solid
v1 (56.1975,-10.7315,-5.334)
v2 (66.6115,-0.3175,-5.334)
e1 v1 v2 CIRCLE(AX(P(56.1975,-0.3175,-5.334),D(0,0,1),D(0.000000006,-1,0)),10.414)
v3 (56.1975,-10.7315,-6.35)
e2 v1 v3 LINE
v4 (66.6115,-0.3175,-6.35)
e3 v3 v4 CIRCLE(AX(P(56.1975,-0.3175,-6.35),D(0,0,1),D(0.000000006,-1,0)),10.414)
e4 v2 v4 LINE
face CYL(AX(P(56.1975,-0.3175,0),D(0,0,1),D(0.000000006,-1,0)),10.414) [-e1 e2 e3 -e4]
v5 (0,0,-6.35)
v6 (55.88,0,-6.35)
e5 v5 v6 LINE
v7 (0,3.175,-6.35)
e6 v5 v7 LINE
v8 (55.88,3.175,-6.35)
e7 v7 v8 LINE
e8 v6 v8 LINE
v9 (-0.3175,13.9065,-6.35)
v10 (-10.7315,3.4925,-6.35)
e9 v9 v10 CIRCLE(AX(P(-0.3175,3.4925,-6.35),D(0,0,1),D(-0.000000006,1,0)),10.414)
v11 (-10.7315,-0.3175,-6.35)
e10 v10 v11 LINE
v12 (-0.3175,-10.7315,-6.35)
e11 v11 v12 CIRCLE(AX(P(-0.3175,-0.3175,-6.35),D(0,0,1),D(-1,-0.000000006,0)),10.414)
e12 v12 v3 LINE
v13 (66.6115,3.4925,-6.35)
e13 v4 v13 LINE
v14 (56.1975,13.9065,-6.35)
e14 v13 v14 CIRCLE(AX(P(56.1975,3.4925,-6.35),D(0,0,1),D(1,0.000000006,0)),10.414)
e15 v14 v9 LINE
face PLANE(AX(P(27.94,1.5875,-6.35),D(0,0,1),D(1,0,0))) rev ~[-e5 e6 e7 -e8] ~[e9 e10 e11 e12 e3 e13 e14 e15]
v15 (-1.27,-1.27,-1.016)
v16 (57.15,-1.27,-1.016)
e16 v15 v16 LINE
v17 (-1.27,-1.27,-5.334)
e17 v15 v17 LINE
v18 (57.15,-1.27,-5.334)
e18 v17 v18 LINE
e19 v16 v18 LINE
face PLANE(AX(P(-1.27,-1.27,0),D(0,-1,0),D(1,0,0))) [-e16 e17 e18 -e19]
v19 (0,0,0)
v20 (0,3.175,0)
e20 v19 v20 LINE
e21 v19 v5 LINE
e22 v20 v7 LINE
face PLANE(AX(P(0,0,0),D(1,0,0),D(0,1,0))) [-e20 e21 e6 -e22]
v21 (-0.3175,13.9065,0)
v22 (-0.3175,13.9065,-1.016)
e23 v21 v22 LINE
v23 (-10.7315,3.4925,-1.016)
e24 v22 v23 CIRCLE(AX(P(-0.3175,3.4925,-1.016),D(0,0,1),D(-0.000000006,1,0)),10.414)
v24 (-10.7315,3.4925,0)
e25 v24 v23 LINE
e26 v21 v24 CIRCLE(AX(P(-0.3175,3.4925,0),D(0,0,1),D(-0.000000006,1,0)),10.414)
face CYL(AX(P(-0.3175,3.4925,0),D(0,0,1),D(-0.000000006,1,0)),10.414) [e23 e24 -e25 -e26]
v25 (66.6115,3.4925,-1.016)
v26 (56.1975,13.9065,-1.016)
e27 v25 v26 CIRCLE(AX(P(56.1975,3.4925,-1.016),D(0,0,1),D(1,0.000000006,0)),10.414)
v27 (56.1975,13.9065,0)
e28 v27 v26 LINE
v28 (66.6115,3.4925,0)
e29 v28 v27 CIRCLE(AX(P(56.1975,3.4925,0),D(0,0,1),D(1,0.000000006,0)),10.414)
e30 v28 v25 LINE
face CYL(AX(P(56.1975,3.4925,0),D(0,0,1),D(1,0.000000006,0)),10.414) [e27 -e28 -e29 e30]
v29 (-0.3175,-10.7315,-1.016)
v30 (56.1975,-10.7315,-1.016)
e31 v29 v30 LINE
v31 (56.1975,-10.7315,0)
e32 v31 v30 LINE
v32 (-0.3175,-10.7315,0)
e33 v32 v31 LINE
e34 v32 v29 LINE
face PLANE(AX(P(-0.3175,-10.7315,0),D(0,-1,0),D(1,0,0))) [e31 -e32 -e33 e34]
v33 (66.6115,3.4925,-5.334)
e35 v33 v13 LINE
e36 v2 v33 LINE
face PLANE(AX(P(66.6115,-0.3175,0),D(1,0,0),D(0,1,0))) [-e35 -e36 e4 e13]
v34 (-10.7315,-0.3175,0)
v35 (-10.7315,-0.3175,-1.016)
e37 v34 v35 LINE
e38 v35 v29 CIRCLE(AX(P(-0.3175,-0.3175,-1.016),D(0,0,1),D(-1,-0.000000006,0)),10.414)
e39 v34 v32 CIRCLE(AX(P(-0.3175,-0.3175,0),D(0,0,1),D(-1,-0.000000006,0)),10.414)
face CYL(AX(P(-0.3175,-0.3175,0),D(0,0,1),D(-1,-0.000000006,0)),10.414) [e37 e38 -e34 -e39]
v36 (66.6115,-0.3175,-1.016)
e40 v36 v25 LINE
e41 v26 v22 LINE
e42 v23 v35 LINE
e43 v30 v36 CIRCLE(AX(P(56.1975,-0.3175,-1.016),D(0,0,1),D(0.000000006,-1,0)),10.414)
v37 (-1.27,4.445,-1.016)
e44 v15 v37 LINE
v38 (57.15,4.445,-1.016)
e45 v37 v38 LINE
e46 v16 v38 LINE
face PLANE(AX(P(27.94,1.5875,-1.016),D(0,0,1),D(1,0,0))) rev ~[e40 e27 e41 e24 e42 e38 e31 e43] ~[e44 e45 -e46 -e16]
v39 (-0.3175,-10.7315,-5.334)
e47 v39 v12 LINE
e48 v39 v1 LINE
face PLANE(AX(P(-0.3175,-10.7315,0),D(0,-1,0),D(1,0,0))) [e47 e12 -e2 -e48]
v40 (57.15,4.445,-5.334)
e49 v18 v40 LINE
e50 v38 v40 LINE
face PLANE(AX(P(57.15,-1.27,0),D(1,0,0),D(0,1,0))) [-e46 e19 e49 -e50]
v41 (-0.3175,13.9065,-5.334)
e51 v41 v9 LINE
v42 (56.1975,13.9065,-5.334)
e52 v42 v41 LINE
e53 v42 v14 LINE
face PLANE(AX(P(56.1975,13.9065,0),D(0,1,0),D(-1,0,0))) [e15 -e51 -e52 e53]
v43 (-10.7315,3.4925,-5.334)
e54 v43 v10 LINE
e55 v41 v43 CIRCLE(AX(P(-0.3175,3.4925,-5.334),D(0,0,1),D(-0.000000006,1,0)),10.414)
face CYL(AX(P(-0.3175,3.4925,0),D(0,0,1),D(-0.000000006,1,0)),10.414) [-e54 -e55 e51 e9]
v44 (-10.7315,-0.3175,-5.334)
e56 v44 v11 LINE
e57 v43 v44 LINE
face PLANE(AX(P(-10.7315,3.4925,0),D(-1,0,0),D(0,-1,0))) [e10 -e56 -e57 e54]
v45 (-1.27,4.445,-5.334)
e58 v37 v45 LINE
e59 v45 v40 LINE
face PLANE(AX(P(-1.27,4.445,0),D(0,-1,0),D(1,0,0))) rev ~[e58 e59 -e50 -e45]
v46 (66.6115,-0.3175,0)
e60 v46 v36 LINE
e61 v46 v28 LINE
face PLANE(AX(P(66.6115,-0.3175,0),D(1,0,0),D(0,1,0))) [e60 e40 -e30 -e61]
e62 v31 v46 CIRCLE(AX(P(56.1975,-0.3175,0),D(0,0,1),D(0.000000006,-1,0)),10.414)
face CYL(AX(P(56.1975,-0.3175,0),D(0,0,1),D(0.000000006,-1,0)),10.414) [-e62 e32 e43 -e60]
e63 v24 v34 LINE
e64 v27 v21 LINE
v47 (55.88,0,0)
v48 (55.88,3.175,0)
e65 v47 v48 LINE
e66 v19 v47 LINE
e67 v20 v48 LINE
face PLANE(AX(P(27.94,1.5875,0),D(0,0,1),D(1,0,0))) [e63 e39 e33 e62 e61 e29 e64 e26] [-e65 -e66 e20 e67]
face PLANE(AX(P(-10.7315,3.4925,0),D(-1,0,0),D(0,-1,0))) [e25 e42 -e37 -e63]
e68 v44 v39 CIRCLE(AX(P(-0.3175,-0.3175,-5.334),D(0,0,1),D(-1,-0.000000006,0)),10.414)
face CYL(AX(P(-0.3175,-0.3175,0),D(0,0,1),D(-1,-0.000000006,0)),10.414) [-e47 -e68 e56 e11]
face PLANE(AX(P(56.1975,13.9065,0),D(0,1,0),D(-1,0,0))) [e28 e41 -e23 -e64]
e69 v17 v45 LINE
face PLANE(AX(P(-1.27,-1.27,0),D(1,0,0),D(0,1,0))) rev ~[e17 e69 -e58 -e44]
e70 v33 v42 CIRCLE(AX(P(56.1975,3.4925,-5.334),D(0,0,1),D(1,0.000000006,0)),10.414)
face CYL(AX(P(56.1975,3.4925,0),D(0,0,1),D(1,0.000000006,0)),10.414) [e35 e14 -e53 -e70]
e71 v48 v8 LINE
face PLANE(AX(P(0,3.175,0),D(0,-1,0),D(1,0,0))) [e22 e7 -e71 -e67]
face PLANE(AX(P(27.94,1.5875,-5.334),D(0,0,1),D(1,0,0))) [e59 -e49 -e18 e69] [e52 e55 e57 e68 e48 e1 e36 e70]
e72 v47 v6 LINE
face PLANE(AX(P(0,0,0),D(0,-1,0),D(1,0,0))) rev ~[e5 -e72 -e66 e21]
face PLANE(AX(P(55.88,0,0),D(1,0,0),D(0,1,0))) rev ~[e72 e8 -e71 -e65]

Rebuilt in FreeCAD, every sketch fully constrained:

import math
import FreeCAD as App
import Part
import Sketcher
from FreeCAD import Vector
Q = App.Units.Quantity


def add_polygon(sketch, points):
    """Adds a closed chain of lines whose ends are joined by coincident constraints."""
    first, n = sketch.GeometryCount, len(points)
    for a, b in zip(points, points[1:] + points[:1]):
        sketch.addGeometry(Part.LineSegment(App.Vector(*a, 0), App.Vector(*b, 0)), False)
    for i in range(n):
        sketch.addConstraint(Sketcher.Constraint("Coincident", first + i, 2, first + (i + 1) % n, 1))

doc = App.newDocument("Part")
params = doc.addObject("Spreadsheet::Sheet", "Params")
for row, (alias, value) in enumerate([
    ("sketch1_radius", "0.41 in"),
    ("sketch1_width", "2.2 in"),
    ("sketch1_height", "0.15 in"),
    ("sketch1_width2", "2.225 in"),
    ("sketch1_height2", "0.125 in"),
    ("pad1_length", "0.25 in"),
    ("sketch2_radius", "0.41 in"),
    ("sketch2_width", "2.3 in"),
    ("sketch2_height", "0.15 in"),
    ("sketch2_width2", "2.225 in"),
    ("sketch2_height2", "0.225 in"),
    ("pocket1_length", "0.21 in"),
    ("sketch3_radius", "0.41 in"),
    ("sketch3_width", "2.3 in"),
    ("sketch3_height", "0.15 in"),
    ("sketch3_width2", "2.225 in"),
    ("sketch3_height2", "0.225 in"),
    ("pad2_length", "0.04 in"),
], start=1):
    params.set(f"A{row}", alias)
    params.set(f"B{row}", "=" + value)
    params.setAlias(f"B{row}", alias)

body = doc.addObject("PartDesign::Body", "Body")

# Sketch on XY plane
sketch1 = body.newObject("Sketcher::SketchObject", "Sketch")
sketch1.AttachmentSupport = (doc.getObject("XY_Plane"), [""])
sketch1.MapMode = "FlatFace"
sketch1.addGeometry(Part.LineSegment(Vector(56.2, 13.9, 0), Vector(-0.3, 13.9, 0)), False)  # 0
sketch1.addGeometry(Part.ArcOfCircle(Part.Circle(Vector(-0.3, 3.5, 0), Vector(0, 0, 1), 10.4), math.radians(90), math.radians(180)), False)  # 1
sketch1.addGeometry(Part.LineSegment(Vector(-10.7, 3.5, 0), Vector(-10.7, -0.3, 0)), False)  # 2
sketch1.addGeometry(Part.ArcOfCircle(Part.Circle(Vector(-0.3, -0.3, 0), Vector(0, 0, 1), 10.4), math.radians(-180), math.radians(-90)), False)  # 3
sketch1.addGeometry(Part.LineSegment(Vector(-0.3, -10.7, 0), Vector(56.2, -10.7, 0)), False)  # 4
sketch1.addGeometry(Part.ArcOfCircle(Part.Circle(Vector(56.2, -0.3, 0), Vector(0, 0, 1), 10.4), math.radians(-90), math.radians(0)), False)  # 5
sketch1.addGeometry(Part.LineSegment(Vector(66.6, -0.3, 0), Vector(66.6, 3.5, 0)), False)  # 6
sketch1.addGeometry(Part.ArcOfCircle(Part.Circle(Vector(56.2, 3.5, 0), Vector(0, 0, 1), 10.4), math.radians(0), math.radians(90)), False)  # 7
add_polygon(sketch1, [(55.9, 0), (0, 0), (0, 3.2), (55.9, 3.2)])  # lines 8-11
sketch1.addConstraint(Sketcher.Constraint("Tangent", 0, 2, 1, 1))
sketch1.addConstraint(Sketcher.Constraint("Tangent", 1, 2, 2, 1))
sketch1.addConstraint(Sketcher.Constraint("Tangent", 2, 2, 3, 1))
sketch1.addConstraint(Sketcher.Constraint("Tangent", 3, 2, 4, 1))
sketch1.addConstraint(Sketcher.Constraint("Tangent", 4, 2, 5, 1))
sketch1.addConstraint(Sketcher.Constraint("Tangent", 5, 2, 6, 1))
sketch1.addConstraint(Sketcher.Constraint("Tangent", 6, 2, 7, 1))
sketch1.addConstraint(Sketcher.Constraint("Tangent", 7, 2, 0, 1))
sketch1.addConstraint(Sketcher.Constraint("Horizontal", 0))
sketch1.addConstraint(Sketcher.Constraint("Vertical", 2))
sketch1.addConstraint(Sketcher.Constraint("Horizontal", 4))
sketch1.addConstraint(Sketcher.Constraint("Vertical", 6))
sketch1.addConstraint(Sketcher.Constraint("Horizontal", 8))
sketch1.addConstraint(Sketcher.Constraint("Vertical", 9))
sketch1.addConstraint(Sketcher.Constraint("Horizontal", 10))
sketch1.addConstraint(Sketcher.Constraint("Vertical", 11))
sketch1.addConstraint(Sketcher.Constraint("Coincident", 8, 2, -1, 1))
sketch1.addConstraint(Sketcher.Constraint("Equal", 1, 3))
sketch1.addConstraint(Sketcher.Constraint("Equal", 3, 5))
sketch1.addConstraint(Sketcher.Constraint("Equal", 5, 7))
sketch1.addConstraint(Sketcher.Constraint("Radius", 1, Q("0.41 in")))
sketch1.addConstraint(Sketcher.Constraint("DistanceX", 8, 2, 8, 1, Q("2.2 in")))
sketch1.addConstraint(Sketcher.Constraint("DistanceY", 2, 2, 2, 1, Q("0.15 in")))
sketch1.addConstraint(Sketcher.Constraint("DistanceX", 0, 2, 0, 1, Q("2.225 in")))
sketch1.addConstraint(Sketcher.Constraint("DistanceY", 9, 1, 9, 2, Q("0.125 in")))
sketch1.addConstraint(Sketcher.Constraint("DistanceX", 1, 3, -1, 1, Q("0.0125 in")))
sketch1.addConstraint(Sketcher.Constraint("DistanceY", -1, 1, 1, 3, Q("0.1375 in")))
sketch1.setExpression("Constraints[24]", "Params.sketch1_radius")
sketch1.setExpression("Constraints[25]", "Params.sketch1_width")
sketch1.setExpression("Constraints[26]", "Params.sketch1_height")
sketch1.setExpression("Constraints[27]", "Params.sketch1_width2")
sketch1.setExpression("Constraints[28]", "Params.sketch1_height2")
pad1 = body.newObject("PartDesign::Pad", "Pad")
pad1.Profile = sketch1
pad1.setExpression("Length", "Params.pad1_length")
pad1.Reversed = True

# Sketch on XY plane
sketch2 = body.newObject("Sketcher::SketchObject", "Sketch001")
sketch2.AttachmentSupport = (doc.getObject("XY_Plane"), [""])
sketch2.MapMode = "FlatFace"
sketch2.addGeometry(Part.LineSegment(Vector(56.2, 13.9, 0), Vector(-0.3, 13.9, 0)), False)  # 0
sketch2.addGeometry(Part.ArcOfCircle(Part.Circle(Vector(-0.3, 3.5, 0), Vector(0, 0, 1), 10.4), math.radians(90), math.radians(180)), False)  # 1
sketch2.addGeometry(Part.LineSegment(Vector(-10.7, 3.5, 0), Vector(-10.7, -0.3, 0)), False)  # 2
sketch2.addGeometry(Part.ArcOfCircle(Part.Circle(Vector(-0.3, -0.3, 0), Vector(0, 0, 1), 10.4), math.radians(-180), math.radians(-90)), False)  # 3
sketch2.addGeometry(Part.LineSegment(Vector(-0.3, -10.7, 0), Vector(56.2, -10.7, 0)), False)  # 4
sketch2.addGeometry(Part.ArcOfCircle(Part.Circle(Vector(56.2, -0.3, 0), Vector(0, 0, 1), 10.4), math.radians(-90), math.radians(0)), False)  # 5
sketch2.addGeometry(Part.LineSegment(Vector(66.6, -0.3, 0), Vector(66.6, 3.5, 0)), False)  # 6
sketch2.addGeometry(Part.ArcOfCircle(Part.Circle(Vector(56.2, 3.5, 0), Vector(0, 0, 1), 10.4), math.radians(0), math.radians(90)), False)  # 7
add_polygon(sketch2, [(57.1, -1.3), (-1.3, -1.3), (-1.3, 4.4), (57.1, 4.4)])  # lines 8-11
sketch2.addConstraint(Sketcher.Constraint("Tangent", 0, 2, 1, 1))
sketch2.addConstraint(Sketcher.Constraint("Tangent", 1, 2, 2, 1))
sketch2.addConstraint(Sketcher.Constraint("Tangent", 2, 2, 3, 1))
sketch2.addConstraint(Sketcher.Constraint("Tangent", 3, 2, 4, 1))
sketch2.addConstraint(Sketcher.Constraint("Tangent", 4, 2, 5, 1))
sketch2.addConstraint(Sketcher.Constraint("Tangent", 5, 2, 6, 1))
sketch2.addConstraint(Sketcher.Constraint("Tangent", 6, 2, 7, 1))
sketch2.addConstraint(Sketcher.Constraint("Tangent", 7, 2, 0, 1))
sketch2.addConstraint(Sketcher.Constraint("Horizontal", 0))
sketch2.addConstraint(Sketcher.Constraint("Vertical", 2))
sketch2.addConstraint(Sketcher.Constraint("Horizontal", 4))
sketch2.addConstraint(Sketcher.Constraint("Vertical", 6))
sketch2.addConstraint(Sketcher.Constraint("Horizontal", 8))
sketch2.addConstraint(Sketcher.Constraint("Vertical", 9))
sketch2.addConstraint(Sketcher.Constraint("Horizontal", 10))
sketch2.addConstraint(Sketcher.Constraint("Vertical", 11))
sketch2.addConstraint(Sketcher.Constraint("Equal", 1, 3))
sketch2.addConstraint(Sketcher.Constraint("Equal", 3, 5))
sketch2.addConstraint(Sketcher.Constraint("Equal", 5, 7))
sketch2.addConstraint(Sketcher.Constraint("Radius", 1, Q("0.41 in")))
sketch2.addConstraint(Sketcher.Constraint("DistanceX", 8, 2, 8, 1, Q("2.3 in")))
sketch2.addConstraint(Sketcher.Constraint("DistanceY", 2, 2, 2, 1, Q("0.15 in")))
sketch2.addConstraint(Sketcher.Constraint("DistanceX", 0, 2, 0, 1, Q("2.225 in")))
sketch2.addConstraint(Sketcher.Constraint("DistanceY", 9, 1, 9, 2, Q("0.225 in")))
sketch2.addConstraint(Sketcher.Constraint("DistanceX", 8, 2, -1, 1, Q("0.05 in")))
sketch2.addConstraint(Sketcher.Constraint("DistanceY", 8, 2, -1, 1, Q("0.05 in")))
sketch2.addConstraint(Sketcher.Constraint("DistanceY", 8, 2, 1, 3, Q("0.1875 in")))
sketch2.addConstraint(Sketcher.Constraint("DistanceX", 1, 3, -1, 1, Q("0.0125 in")))
sketch2.setExpression("Constraints[23]", "Params.sketch2_radius")
sketch2.setExpression("Constraints[24]", "Params.sketch2_width")
sketch2.setExpression("Constraints[25]", "Params.sketch2_height")
sketch2.setExpression("Constraints[26]", "Params.sketch2_width2")
sketch2.setExpression("Constraints[27]", "Params.sketch2_height2")
pocket1 = body.newObject("PartDesign::Pocket", "Pocket")
pocket1.Profile = sketch2
pocket1.setExpression("Length", "Params.pocket1_length")

# Sketch on XY plane
sketch3 = body.newObject("Sketcher::SketchObject", "Sketch002")
sketch3.AttachmentSupport = (doc.getObject("XY_Plane"), [""])
sketch3.MapMode = "FlatFace"
sketch3.addGeometry(Part.LineSegment(Vector(56.2, 13.9, 0), Vector(-0.3, 13.9, 0)), False)  # 0
sketch3.addGeometry(Part.ArcOfCircle(Part.Circle(Vector(-0.3, 3.5, 0), Vector(0, 0, 1), 10.4), math.radians(90), math.radians(180)), False)  # 1
sketch3.addGeometry(Part.LineSegment(Vector(-10.7, 3.5, 0), Vector(-10.7, -0.3, 0)), False)  # 2
sketch3.addGeometry(Part.ArcOfCircle(Part.Circle(Vector(-0.3, -0.3, 0), Vector(0, 0, 1), 10.4), math.radians(-180), math.radians(-90)), False)  # 3
sketch3.addGeometry(Part.LineSegment(Vector(-0.3, -10.7, 0), Vector(56.2, -10.7, 0)), False)  # 4
sketch3.addGeometry(Part.ArcOfCircle(Part.Circle(Vector(56.2, -0.3, 0), Vector(0, 0, 1), 10.4), math.radians(-90), math.radians(0)), False)  # 5
sketch3.addGeometry(Part.LineSegment(Vector(66.6, -0.3, 0), Vector(66.6, 3.5, 0)), False)  # 6
sketch3.addGeometry(Part.ArcOfCircle(Part.Circle(Vector(56.2, 3.5, 0), Vector(0, 0, 1), 10.4), math.radians(0), math.radians(90)), False)  # 7
add_polygon(sketch3, [(57.1, -1.3), (-1.3, -1.3), (-1.3, 4.4), (57.1, 4.4)])  # lines 8-11
sketch3.addConstraint(Sketcher.Constraint("Tangent", 0, 2, 1, 1))
sketch3.addConstraint(Sketcher.Constraint("Tangent", 1, 2, 2, 1))
sketch3.addConstraint(Sketcher.Constraint("Tangent", 2, 2, 3, 1))
sketch3.addConstraint(Sketcher.Constraint("Tangent", 3, 2, 4, 1))
sketch3.addConstraint(Sketcher.Constraint("Tangent", 4, 2, 5, 1))
sketch3.addConstraint(Sketcher.Constraint("Tangent", 5, 2, 6, 1))
sketch3.addConstraint(Sketcher.Constraint("Tangent", 6, 2, 7, 1))
sketch3.addConstraint(Sketcher.Constraint("Tangent", 7, 2, 0, 1))
sketch3.addConstraint(Sketcher.Constraint("Horizontal", 0))
sketch3.addConstraint(Sketcher.Constraint("Vertical", 2))
sketch3.addConstraint(Sketcher.Constraint("Horizontal", 4))
sketch3.addConstraint(Sketcher.Constraint("Vertical", 6))
sketch3.addConstraint(Sketcher.Constraint("Horizontal", 8))
sketch3.addConstraint(Sketcher.Constraint("Vertical", 9))
sketch3.addConstraint(Sketcher.Constraint("Horizontal", 10))
sketch3.addConstraint(Sketcher.Constraint("Vertical", 11))
sketch3.addConstraint(Sketcher.Constraint("Equal", 1, 3))
sketch3.addConstraint(Sketcher.Constraint("Equal", 3, 5))
sketch3.addConstraint(Sketcher.Constraint("Equal", 5, 7))
sketch3.addConstraint(Sketcher.Constraint("Radius", 1, Q("0.41 in")))
sketch3.addConstraint(Sketcher.Constraint("DistanceX", 8, 2, 8, 1, Q("2.3 in")))
sketch3.addConstraint(Sketcher.Constraint("DistanceY", 2, 2, 2, 1, Q("0.15 in")))
sketch3.addConstraint(Sketcher.Constraint("DistanceX", 0, 2, 0, 1, Q("2.225 in")))
sketch3.addConstraint(Sketcher.Constraint("DistanceY", 9, 1, 9, 2, Q("0.225 in")))
sketch3.addConstraint(Sketcher.Constraint("DistanceX", 8, 2, -1, 1, Q("0.05 in")))
sketch3.addConstraint(Sketcher.Constraint("DistanceY", 8, 2, -1, 1, Q("0.05 in")))
sketch3.addConstraint(Sketcher.Constraint("DistanceY", 8, 2, 1, 3, Q("0.1875 in")))
sketch3.addConstraint(Sketcher.Constraint("DistanceX", 1, 3, -1, 1, Q("0.0125 in")))
sketch3.setExpression("Constraints[23]", "Params.sketch3_radius")
sketch3.setExpression("Constraints[24]", "Params.sketch3_width")
sketch3.setExpression("Constraints[25]", "Params.sketch3_height")
sketch3.setExpression("Constraints[26]", "Params.sketch3_width2")
sketch3.setExpression("Constraints[27]", "Params.sketch3_height2")
pad2 = body.newObject("PartDesign::Pad", "Pad001")
pad2.Profile = sketch3
pad2.setExpression("Length", "Params.pad2_length")
pad2.Reversed = True

doc.recompute()
